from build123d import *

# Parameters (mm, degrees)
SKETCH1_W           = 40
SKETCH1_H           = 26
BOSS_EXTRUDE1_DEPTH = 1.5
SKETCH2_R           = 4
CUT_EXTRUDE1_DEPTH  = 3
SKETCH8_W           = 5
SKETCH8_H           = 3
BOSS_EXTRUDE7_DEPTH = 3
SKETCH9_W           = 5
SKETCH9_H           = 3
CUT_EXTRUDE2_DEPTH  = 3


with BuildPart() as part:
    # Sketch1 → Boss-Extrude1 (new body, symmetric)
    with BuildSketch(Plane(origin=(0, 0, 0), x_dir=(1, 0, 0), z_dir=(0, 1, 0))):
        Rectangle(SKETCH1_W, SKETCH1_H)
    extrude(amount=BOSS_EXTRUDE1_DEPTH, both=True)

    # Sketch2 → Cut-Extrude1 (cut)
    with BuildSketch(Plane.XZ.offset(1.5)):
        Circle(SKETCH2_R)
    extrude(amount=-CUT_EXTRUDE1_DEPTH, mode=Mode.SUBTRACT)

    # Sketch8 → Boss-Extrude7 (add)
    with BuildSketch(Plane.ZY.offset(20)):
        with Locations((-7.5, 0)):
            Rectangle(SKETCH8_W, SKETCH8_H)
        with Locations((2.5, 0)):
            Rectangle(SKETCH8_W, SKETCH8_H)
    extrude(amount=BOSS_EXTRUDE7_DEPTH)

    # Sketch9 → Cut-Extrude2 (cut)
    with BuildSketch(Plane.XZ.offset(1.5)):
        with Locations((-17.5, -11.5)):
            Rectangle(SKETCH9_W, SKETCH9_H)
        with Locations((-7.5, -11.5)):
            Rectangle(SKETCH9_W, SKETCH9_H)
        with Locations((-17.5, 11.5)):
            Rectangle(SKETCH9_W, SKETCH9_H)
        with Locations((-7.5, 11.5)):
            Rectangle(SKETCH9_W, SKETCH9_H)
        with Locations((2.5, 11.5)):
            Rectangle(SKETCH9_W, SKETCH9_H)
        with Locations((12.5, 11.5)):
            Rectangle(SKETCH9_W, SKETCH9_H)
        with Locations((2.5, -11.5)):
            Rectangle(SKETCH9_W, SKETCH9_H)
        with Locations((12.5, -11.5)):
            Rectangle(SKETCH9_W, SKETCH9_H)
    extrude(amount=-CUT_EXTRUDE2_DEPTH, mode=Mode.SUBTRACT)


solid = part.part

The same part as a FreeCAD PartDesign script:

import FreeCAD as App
import Part
import Sketcher
from FreeCAD import Vector

doc = App.newDocument("Part")
body = doc.addObject("PartDesign::Body", "Body")

sketch1 = doc.addObject("Sketcher::SketchObject", "Sketch")
body.addObject(sketch1)
sketch1.AttachmentSupport = (doc.XZ_Plane, [""])
sketch1.MapMode = "FlatFace"
sketch1.addGeometry([
    Part.LineSegment(Vector(-20, -13, 0), Vector(-20, 13, 0)),
    Part.LineSegment(Vector(-20, 13, 0), Vector(20, 13, 0)),
    Part.LineSegment(Vector(20, 13, 0), Vector(20, -13, 0)),
    Part.LineSegment(Vector(20, -13, 0), Vector(-20, -13, 0)),
], False)
sketch1.addConstraint([
    Sketcher.Constraint("Coincident", 0, 2, 1, 1),
    Sketcher.Constraint("Coincident", 1, 2, 2, 1),
    Sketcher.Constraint("Coincident", 2, 2, 3, 1),
    Sketcher.Constraint("Coincident", 3, 2, 0, 1),
    Sketcher.Constraint("Vertical", 0),
    Sketcher.Constraint("Horizontal", 1),
    Sketcher.Constraint("Vertical", 2),
    Sketcher.Constraint("Horizontal", 3),
    Sketcher.Constraint("Symmetric", 0, 2, 2, 2, -1, 1),
    Sketcher.Constraint("DistanceX", 1, 1, 1, 2, 40.0),
    Sketcher.Constraint("DistanceY", 0, 1, 0, 2, 26.0),
])
pad1 = doc.addObject("PartDesign::Pad", "Pad")
body.addObject(pad1)
pad1.Profile = sketch1
pad1.Length = 3
pad1.Midplane = True

sketch2 = doc.addObject("Sketcher::SketchObject", "Sketch001")
body.addObject(sketch2)
sketch2.AttachmentSupport = (doc.XZ_Plane, [""])
sketch2.MapMode = "FlatFace"
sketch2.AttachmentOffset = App.Placement(Vector(0, 0, 1.5), App.Rotation())
sketch2.addGeometry(Part.Circle(Vector(0, 0, 0), Vector(0, 0, 1), 4), False)
sketch2.addConstraint([
    Sketcher.Constraint("Coincident", 0, 3, -1, 1),
    Sketcher.Constraint("Diameter", 0, 8.0),
])
pocket1 = doc.addObject("PartDesign::Pocket", "Pocket")
body.addObject(pocket1)
pocket1.Profile = sketch2
pocket1.Length = 3

sketch3 = doc.addObject("Sketcher::SketchObject", "Sketch002")
body.addObject(sketch3)
sketch3.AttachmentSupport = (doc.YZ_Plane, [""])
sketch3.MapMode = "FlatFace"
sketch3.AttachmentOffset = App.Placement(Vector(0, 0, -20), App.Rotation())
sketch3.addGeometry([
    Part.LineSegment(Vector(1.5, -10, 0), Vector(-1.5, -10, 0)),
    Part.LineSegment(Vector(-1.5, -10, 0), Vector(-1.5, -5, 0)),
    Part.LineSegment(Vector(-1.5, -5, 0), Vector(1.5, -5, 0)),
    Part.LineSegment(Vector(1.5, -5, 0), Vector(1.5, -10, 0)),
    Part.LineSegment(Vector(1.5, 0, 0), Vector(-1.5, 0, 0)),
    Part.LineSegment(Vector(-1.5, 0, 0), Vector(-1.5, 5, 0)),
    Part.LineSegment(Vector(-1.5, 5, 0), Vector(1.5, 5, 0)),
    Part.LineSegment(Vector(1.5, 5, 0), Vector(1.5, 0, 0)),
], False)
sketch3.addConstraint([
    Sketcher.Constraint("Coincident", 0, 2, 1, 1),
    Sketcher.Constraint("Coincident", 1, 2, 2, 1),
    Sketcher.Constraint("Coincident", 2, 2, 3, 1),
    Sketcher.Constraint("Coincident", 3, 2, 0, 1),
    Sketcher.Constraint("Coincident", 4, 2, 5, 1),
    Sketcher.Constraint("Coincident", 5, 2, 6, 1),
    Sketcher.Constraint("Coincident", 6, 2, 7, 1),
    Sketcher.Constraint("Coincident", 7, 2, 4, 1),
    Sketcher.Constraint("Horizontal", 0),
    Sketcher.Constraint("Vertical", 1),
    Sketcher.Constraint("Horizontal", 2),
    Sketcher.Constraint("Vertical", 3),
    Sketcher.Constraint("Horizontal", 4),
    Sketcher.Constraint("Vertical", 5),
    Sketcher.Constraint("Horizontal", 6),
    Sketcher.Constraint("Vertical", 7),
    Sketcher.Constraint("Symmetric", 2, 2, 5, 2, -1, 1),
    Sketcher.Constraint("Symmetric", 4, 2, 7, 2, -1, 1),
    Sketcher.Constraint("Vertical", 1, 2, 4, 2),
    Sketcher.Constraint("Equal", 3, 5),
    Sketcher.Constraint("DistanceX", 0, 2, 0, 1, 3.0),
    Sketcher.Constraint("DistanceY", 1, 1, 1, 2, 5.0),
])
pad2 = doc.addObject("PartDesign::Pad", "Pad001")
body.addObject(pad2)
pad2.Profile = sketch3
pad2.Length = 3
pad2.Reversed = True

sketch4 = doc.addObject("Sketcher::SketchObject", "Sketch003")
body.addObject(sketch4)
sketch4.AttachmentSupport = (doc.XZ_Plane, [""])
sketch4.MapMode = "FlatFace"
sketch4.AttachmentOffset = App.Placement(Vector(0, 0, 1.5), App.Rotation())
sketch4.addGeometry([
    Part.LineSegment(Vector(-20, -10, 0), Vector(-20, -13, 0)),
    Part.LineSegment(Vector(-20, -13, 0), Vector(-15, -13, 0)),
    Part.LineSegment(Vector(-15, -13, 0), Vector(-15, -10, 0)),
    Part.LineSegment(Vector(-15, -10, 0), Vector(-20, -10, 0)),
    Part.LineSegment(Vector(-10, -10, 0), Vector(-10, -13, 0)),
    Part.LineSegment(Vector(-10, -13, 0), Vector(-5, -13, 0)),
    Part.LineSegment(Vector(-5, -13, 0), Vector(-5, -10, 0)),
    Part.LineSegment(Vector(-5, -10, 0), Vector(-10, -10, 0)),
    Part.LineSegment(Vector(-20, 13, 0), Vector(-20, 10, 0)),
    Part.LineSegment(Vector(-20, 10, 0), Vector(-15, 10, 0)),
    Part.LineSegment(Vector(-15, 10, 0), Vector(-15, 13, 0)),
    Part.LineSegment(Vector(-15, 13, 0), Vector(-20, 13, 0)),
    Part.LineSegment(Vector(-10, 13, 0), Vector(-10, 10, 0)),
    Part.LineSegment(Vector(-10, 10, 0), Vector(-5, 10, 0)),
    Part.LineSegment(Vector(-5, 10, 0), Vector(-5, 13, 0)),
    Part.LineSegment(Vector(-5, 13, 0), Vector(-10, 13, 0)),
    Part.LineSegment(Vector(0, 13, 0), Vector(0, 10, 0)),
    Part.LineSegment(Vector(0, 10, 0), Vector(5, 10, 0)),
    Part.LineSegment(Vector(5, 10, 0), Vector(5, 13, 0)),
    Part.LineSegment(Vector(5, 13, 0), Vector(0, 13, 0)),
    Part.LineSegment(Vector(10, 13, 0), Vector(10, 10, 0)),
    Part.LineSegment(Vector(10, 10, 0), Vector(15, 10, 0)),
    Part.LineSegment(Vector(15, 10, 0), Vector(15, 13, 0)),
    Part.LineSegment(Vector(15, 13, 0), Vector(10, 13, 0)),
    Part.LineSegment(Vector(0, -10, 0), Vector(0, -13, 0)),
    Part.LineSegment(Vector(0, -13, 0), Vector(5, -13, 0)),
    Part.LineSegment(Vector(5, -13, 0), Vector(5, -10, 0)),
    Part.LineSegment(Vector(5, -10, 0), Vector(0, -10, 0)),
    Part.LineSegment(Vector(10, -10, 0), Vector(10, -13, 0)),
    Part.LineSegment(Vector(10, -13, 0), Vector(15, -13, 0)),
    Part.LineSegment(Vector(15, -13, 0), Vector(15, -10, 0)),
    Part.LineSegment(Vector(15, -10, 0), Vector(10, -10, 0)),
], False)
sketch4.addConstraint([
    Sketcher.Constraint("Coincident", 0, 2, 1, 1),
    Sketcher.Constraint("Coincident", 1, 2, 2, 1),
    Sketcher.Constraint("Coincident", 2, 2, 3, 1),
    Sketcher.Constraint("Coincident", 3, 2, 0, 1),
    Sketcher.Constraint("Coincident", 4, 2, 5, 1),
    Sketcher.Constraint("Coincident", 5, 2, 6, 1),
    Sketcher.Constraint("Coincident", 6, 2, 7, 1),
    Sketcher.Constraint("Coincident", 7, 2, 4, 1),
    Sketcher.Constraint("Coincident", 8, 2, 9, 1),
    Sketcher.Constraint("Coincident", 9, 2, 10, 1),
    Sketcher.Constraint("Coincident", 10, 2, 11, 1),
    Sketcher.Constraint("Coincident", 11, 2, 8, 1),
    Sketcher.Constraint("Coincident", 12, 2, 13, 1),
    Sketcher.Constraint("Coincident", 13, 2, 14, 1),
    Sketcher.Constraint("Coincident", 14, 2, 15, 1),
    Sketcher.Constraint("Coincident", 15, 2, 12, 1),
    Sketcher.Constraint("Coincident", 16, 2, 17, 1),
    Sketcher.Constraint("Coincident", 17, 2, 18, 1),
    Sketcher.Constraint("Coincident", 18, 2, 19, 1),
    Sketcher.Constraint("Coincident", 19, 2, 16, 1),
    Sketcher.Constraint("Coincident", 20, 2, 21, 1),
    Sketcher.Constraint("Coincident", 21, 2, 22, 1),
    Sketcher.Constraint("Coincident", 22, 2, 23, 1),
    Sketcher.Constraint("Coincident", 23, 2, 20, 1),
    Sketcher.Constraint("Coincident", 24, 2, 25, 1),
    Sketcher.Constraint("Coincident", 25, 2, 26, 1),
    Sketcher.Constraint("Coincident", 26, 2, 27, 1),
    Sketcher.Constraint("Coincident", 27, 2, 24, 1),
    Sketcher.Constraint("Coincident", 28, 2, 29, 1),
    Sketcher.Constraint("Coincident", 29, 2, 30, 1),
    Sketcher.Constraint("Coincident", 30, 2, 31, 1),
    Sketcher.Constraint("Coincident", 31, 2, 28, 1),
    Sketcher.Constraint("Vertical", 0),
    Sketcher.Constraint("Horizontal", 1),
    Sketcher.Constraint("Vertical", 2),
    Sketcher.Constraint("Horizontal", 3),
    Sketcher.Constraint("Vertical", 4),
    Sketcher.Constraint("Horizontal", 5),
    Sketcher.Constraint("Vertical", 6),
    Sketcher.Constraint("Horizontal", 7),
    Sketcher.Constraint("Vertical", 8),
    Sketcher.Constraint("Horizontal", 9),
    Sketcher.Constraint("Vertical", 10),
    Sketcher.Constraint("Horizontal", 11),
    Sketcher.Constraint("Vertical", 12),
    Sketcher.Constraint("Horizontal", 13),
    Sketcher.Constraint("Vertical", 14),
    Sketcher.Constraint("Horizontal", 15),
    Sketcher.Constraint("Vertical", 16),
    Sketcher.Constraint("Horizontal", 17),
    Sketcher.Constraint("Vertical", 18),
    Sketcher.Constraint("Horizontal", 19),
    Sketcher.Constraint("Vertical", 20),
    Sketcher.Constraint("Horizontal", 21),
    Sketcher.Constraint("Vertical", 22),
    Sketcher.Constraint("Horizontal", 23),
    Sketcher.Constraint("Vertical", 24),
    Sketcher.Constraint("Horizontal", 25),
    Sketcher.Constraint("Vertical", 26),
    Sketcher.Constraint("Horizontal", 27),
    Sketcher.Constraint("Vertical", 28),
    Sketcher.Constraint("Horizontal", 29),
    Sketcher.Constraint("Vertical", 30),
    Sketcher.Constraint("Horizontal", 31),
    Sketcher.Constraint("Symmetric", 6, 2, 17, 2, -1, 1),
    Sketcher.Constraint("Symmetric", 7, 2, 20, 2, -1, 1),
    Sketcher.Constraint("Symmetric", 2, 2, 21, 2, -1, 1),
    Sketcher.Constraint("Symmetric", 19, 2, 24, 2, -1, 1),
    Sketcher.Constraint("Symmetric", 14, 2, 25, 2, -1, 1),
    Sketcher.Constraint("Symmetric", 15, 2, 28, 2, -1, 1),
    Sketcher.Constraint("Symmetric", 10, 2, 29, 2, -1, 1),
    Sketcher.Constraint("Symmetric", 13, 2, 17, 2, -2),
    Sketcher.Constraint("Symmetric", 9, 2, 21, 2, -2),
    Sketcher.Constraint("Symmetric", 15, 2, 23, 2, -2),
    Sketcher.Constraint("Symmetric", 0, 2, 11, 2, -1),
    Sketcher.Constraint("Symmetric", 16, 2, 27, 2, -1),
    Sketcher.Constraint("Horizontal", 1, 2, 4, 2),
    Sketcher.Constraint("Horizontal", 27, 2, 30, 2),
    Sketcher.Constraint("Equal", 3, 5),
    Sketcher.Constraint("Equal", 15, 17),
    Sketcher.Constraint("Equal", 19, 21),
    Sketcher.Constraint("DistanceX", 1, 1, 1, 2, 5.0),
    Sketcher.Constraint("DistanceY", 0, 2, 0, 1, 3.0),
    Sketcher.Constraint("DistanceY", 0, 2, -1, 1, 13.0),
])
pocket2 = doc.addObject("PartDesign::Pocket", "Pocket001")
body.addObject(pocket2)
pocket2.Profile = sketch4
pocket2.Length = 3

doc.recompute()
